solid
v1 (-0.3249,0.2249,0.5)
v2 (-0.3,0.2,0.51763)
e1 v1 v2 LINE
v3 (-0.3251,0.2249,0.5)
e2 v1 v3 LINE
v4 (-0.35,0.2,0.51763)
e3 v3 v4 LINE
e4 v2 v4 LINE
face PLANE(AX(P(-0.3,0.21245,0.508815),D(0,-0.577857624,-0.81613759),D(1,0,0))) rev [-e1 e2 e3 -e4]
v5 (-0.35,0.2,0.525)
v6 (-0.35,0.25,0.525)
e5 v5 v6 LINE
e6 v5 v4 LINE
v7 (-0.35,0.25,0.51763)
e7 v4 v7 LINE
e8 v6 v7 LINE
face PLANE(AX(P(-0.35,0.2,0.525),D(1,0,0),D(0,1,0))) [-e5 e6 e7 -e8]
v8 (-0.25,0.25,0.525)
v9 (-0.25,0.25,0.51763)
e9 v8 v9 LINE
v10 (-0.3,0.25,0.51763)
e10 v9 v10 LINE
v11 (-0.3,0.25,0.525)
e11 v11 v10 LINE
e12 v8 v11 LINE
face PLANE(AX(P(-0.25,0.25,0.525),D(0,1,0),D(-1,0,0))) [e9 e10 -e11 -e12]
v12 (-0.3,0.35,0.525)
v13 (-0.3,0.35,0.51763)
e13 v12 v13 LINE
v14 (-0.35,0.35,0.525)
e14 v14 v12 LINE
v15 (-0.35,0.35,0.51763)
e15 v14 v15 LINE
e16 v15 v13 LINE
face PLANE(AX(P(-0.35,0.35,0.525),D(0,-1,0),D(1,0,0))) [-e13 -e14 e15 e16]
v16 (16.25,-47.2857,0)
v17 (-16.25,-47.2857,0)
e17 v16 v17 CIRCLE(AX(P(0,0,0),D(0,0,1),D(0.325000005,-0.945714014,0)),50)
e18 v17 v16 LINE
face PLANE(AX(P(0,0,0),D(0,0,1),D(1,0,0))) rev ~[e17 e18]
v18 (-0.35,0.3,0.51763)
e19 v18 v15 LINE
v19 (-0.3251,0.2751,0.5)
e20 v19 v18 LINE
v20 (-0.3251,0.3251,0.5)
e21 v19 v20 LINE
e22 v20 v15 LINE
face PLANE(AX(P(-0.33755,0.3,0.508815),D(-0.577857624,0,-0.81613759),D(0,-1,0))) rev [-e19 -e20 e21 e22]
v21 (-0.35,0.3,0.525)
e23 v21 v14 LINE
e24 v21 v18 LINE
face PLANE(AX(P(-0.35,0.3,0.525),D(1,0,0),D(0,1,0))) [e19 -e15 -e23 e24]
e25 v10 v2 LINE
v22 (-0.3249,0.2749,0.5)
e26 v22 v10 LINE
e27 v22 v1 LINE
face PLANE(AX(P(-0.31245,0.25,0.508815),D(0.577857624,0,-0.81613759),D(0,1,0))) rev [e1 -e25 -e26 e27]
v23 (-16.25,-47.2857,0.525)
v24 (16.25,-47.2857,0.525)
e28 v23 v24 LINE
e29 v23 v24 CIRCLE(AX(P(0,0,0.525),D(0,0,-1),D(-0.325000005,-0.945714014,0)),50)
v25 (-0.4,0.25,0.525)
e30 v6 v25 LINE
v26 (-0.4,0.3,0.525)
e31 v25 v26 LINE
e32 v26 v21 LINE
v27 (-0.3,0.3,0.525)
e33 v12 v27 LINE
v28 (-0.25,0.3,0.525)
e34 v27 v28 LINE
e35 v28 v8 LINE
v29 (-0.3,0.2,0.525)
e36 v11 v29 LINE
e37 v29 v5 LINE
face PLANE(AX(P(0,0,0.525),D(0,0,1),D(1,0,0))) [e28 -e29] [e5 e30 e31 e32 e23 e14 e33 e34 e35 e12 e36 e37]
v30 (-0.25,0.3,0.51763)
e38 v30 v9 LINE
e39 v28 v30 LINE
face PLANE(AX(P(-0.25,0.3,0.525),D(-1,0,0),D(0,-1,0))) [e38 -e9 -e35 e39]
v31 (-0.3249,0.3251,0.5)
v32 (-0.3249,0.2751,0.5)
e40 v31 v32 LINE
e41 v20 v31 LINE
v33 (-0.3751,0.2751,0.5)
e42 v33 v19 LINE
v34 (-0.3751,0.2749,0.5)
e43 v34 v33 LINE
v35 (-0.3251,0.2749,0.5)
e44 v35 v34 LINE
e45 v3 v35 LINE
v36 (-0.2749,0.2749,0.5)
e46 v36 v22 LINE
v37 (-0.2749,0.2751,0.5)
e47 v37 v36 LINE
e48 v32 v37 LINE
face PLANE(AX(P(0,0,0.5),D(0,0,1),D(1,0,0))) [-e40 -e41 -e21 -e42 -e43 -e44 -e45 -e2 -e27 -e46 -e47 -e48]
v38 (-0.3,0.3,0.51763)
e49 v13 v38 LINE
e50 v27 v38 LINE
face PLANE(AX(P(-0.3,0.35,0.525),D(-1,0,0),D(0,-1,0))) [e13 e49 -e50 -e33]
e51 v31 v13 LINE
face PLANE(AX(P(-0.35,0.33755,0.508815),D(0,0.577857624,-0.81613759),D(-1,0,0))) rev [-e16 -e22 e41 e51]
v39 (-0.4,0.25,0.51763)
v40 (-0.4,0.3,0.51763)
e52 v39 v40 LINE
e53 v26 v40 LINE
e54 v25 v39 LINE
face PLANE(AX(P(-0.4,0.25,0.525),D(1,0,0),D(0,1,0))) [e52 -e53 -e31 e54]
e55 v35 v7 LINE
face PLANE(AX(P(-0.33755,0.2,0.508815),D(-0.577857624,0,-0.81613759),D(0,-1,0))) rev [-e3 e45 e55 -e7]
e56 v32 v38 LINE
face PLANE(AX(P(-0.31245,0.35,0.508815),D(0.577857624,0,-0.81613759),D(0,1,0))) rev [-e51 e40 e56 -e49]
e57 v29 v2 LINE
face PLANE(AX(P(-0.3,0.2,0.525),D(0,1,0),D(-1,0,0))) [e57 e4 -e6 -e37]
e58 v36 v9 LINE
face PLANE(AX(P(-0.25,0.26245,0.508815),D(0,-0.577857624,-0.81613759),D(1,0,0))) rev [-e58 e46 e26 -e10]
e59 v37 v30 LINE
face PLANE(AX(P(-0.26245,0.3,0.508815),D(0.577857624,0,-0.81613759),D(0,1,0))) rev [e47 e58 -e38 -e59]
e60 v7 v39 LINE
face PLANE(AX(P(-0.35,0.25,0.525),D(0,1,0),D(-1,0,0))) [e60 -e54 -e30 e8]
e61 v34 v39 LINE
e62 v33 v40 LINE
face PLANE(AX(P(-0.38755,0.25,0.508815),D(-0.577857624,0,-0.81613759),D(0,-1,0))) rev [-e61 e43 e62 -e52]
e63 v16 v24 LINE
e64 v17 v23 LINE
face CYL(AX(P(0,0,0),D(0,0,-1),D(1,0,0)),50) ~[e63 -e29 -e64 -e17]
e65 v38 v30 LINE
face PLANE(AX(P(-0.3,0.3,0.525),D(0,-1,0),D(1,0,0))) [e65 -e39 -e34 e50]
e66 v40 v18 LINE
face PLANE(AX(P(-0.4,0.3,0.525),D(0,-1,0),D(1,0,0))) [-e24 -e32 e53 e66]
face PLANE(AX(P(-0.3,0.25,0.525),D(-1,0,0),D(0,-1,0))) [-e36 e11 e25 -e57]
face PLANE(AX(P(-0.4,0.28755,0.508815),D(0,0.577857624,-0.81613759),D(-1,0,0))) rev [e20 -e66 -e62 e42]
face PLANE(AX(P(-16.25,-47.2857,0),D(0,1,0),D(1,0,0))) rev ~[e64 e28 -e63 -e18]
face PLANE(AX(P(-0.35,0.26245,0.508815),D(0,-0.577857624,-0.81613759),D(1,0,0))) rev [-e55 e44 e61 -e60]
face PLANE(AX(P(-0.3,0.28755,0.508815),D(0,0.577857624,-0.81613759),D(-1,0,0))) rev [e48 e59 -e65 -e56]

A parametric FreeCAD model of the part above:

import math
import FreeCAD as App
import Part
import Sketcher
from FreeCAD import Vector
Q = App.Units.Quantity


def edges_at(feature, points):
    """Names of the edges that pass closest to the given points."""
    edges = feature.Shape.Edges
    near = lambda p: min(range(len(edges)), key=lambda i: edges[i].distToShape(Part.Vertex(*p))[0])
    return sorted({f"Edge{near(p) + 1}" for p in points})


def add_polygon(sketch, points):
    """Adds a closed chain of lines whose ends are joined by coincident constraints."""
    first, n = sketch.GeometryCount, len(points)
    for a, b in zip(points, points[1:] + points[:1]):
        sketch.addGeometry(Part.LineSegment(App.Vector(*a, 0), App.Vector(*b, 0)), False)
    for i in range(n):
        sketch.addConstraint(Sketcher.Constraint("Coincident", first + i, 2, first + (i + 1) % n, 1))

doc = App.newDocument("Part")
body = doc.addObject("PartDesign::Body", "Body")

# Sketch on XY plane
sketch1 = doc.addObject("Sketcher::SketchObject", "Sketch")
body.addObject(sketch1)
sketch1.AttachmentSupport = (doc.XY_Plane, [""])
sketch1.MapMode = "FlatFace"
sketch1.addGeometry(Part.ArcOfCircle(Part.Circle(Vector(0, 0, 0), Vector(0, 0, 1), 50), math.radians(-71), math.radians(251)), False)
sketch1.addGeometry(Part.LineSegment(Vector(-16, -47, 0), Vector(16, -47, 0)), False)
sketch1.addConstraint(Sketcher.Constraint("Coincident", 0, 1, 1, 2))
sketch1.addConstraint(Sketcher.Constraint("Coincident", 1, 1, 0, 2))
sketch1.addConstraint(Sketcher.Constraint("Horizontal", 1))
sketch1.addConstraint(Sketcher.Constraint("Coincident", 0, 3, -1, 1))
sketch1.addConstraint(Sketcher.Constraint("Radius", 0, Q("50 mm")))
sketch1.addConstraint(Sketcher.Constraint("DistanceX", 1, 1, 1, 2, Q("32.5 mm")))
pad1 = doc.addObject("PartDesign::Pad", "Pad")
body.addObject(pad1)
pad1.Profile = sketch1
pad1.Length = 0.525

# Sketch on XY plane
sketch2 = doc.addObject("Sketcher::SketchObject", "Sketch001")
body.addObject(sketch2)
sketch2.AttachmentSupport = (doc.XY_Plane, [""])
sketch2.MapMode = "FlatFace"
sketch2.AttachmentOffset = App.Placement(Vector(0, 0, 0.525), App.Rotation())
add_polygon(sketch2, [(-0.3, 0.35), (-0.35, 0.35), (-0.35, 0.3), (-0.4, 0.3), (-0.4, 0.25), (-0.35, 0.25), (-0.35, 0.2), (-0.3, 0.2), (-0.3, 0.25), (-0.25, 0.25), (-0.25, 0.3), (-0.3, 0.3)])  # lines 0-11
sketch2.addConstraint(Sketcher.Constraint("Horizontal", 0))
sketch2.addConstraint(Sketcher.Constraint("Vertical", 1))
sketch2.addConstraint(Sketcher.Constraint("Horizontal", 2))
sketch2.addConstraint(Sketcher.Constraint("Vertical", 3))
sketch2.addConstraint(Sketcher.Constraint("Horizontal", 4))
sketch2.addConstraint(Sketcher.Constraint("Vertical", 5))
sketch2.addConstraint(Sketcher.Constraint("Horizontal", 6))
sketch2.addConstraint(Sketcher.Constraint("Vertical", 7))
sketch2.addConstraint(Sketcher.Constraint("Horizontal", 8))
sketch2.addConstraint(Sketcher.Constraint("Vertical", 9))
sketch2.addConstraint(Sketcher.Constraint("Horizontal", 10))
sketch2.addConstraint(Sketcher.Constraint("Vertical", 11))
sketch2.addConstraint(Sketcher.Constraint("Horizontal", 4, 2, 7, 2))
sketch2.addConstraint(Sketcher.Constraint("Horizontal", 2, 2, 9, 2))
sketch2.addConstraint(Sketcher.Constraint("Vertical", 1, 2, 4, 2))
sketch2.addConstraint(Sketcher.Constraint("Vertical", 7, 2, 10, 2))
sketch2.addConstraint(Sketcher.Constraint("Equal", 0, 2))
sketch2.addConstraint(Sketcher.Constraint("Equal", 6, 8))
sketch2.addConstraint(Sketcher.Constraint("Equal", 10, 1))
sketch2.addConstraint(Sketcher.Constraint("Equal", 1, 3))
sketch2.addConstraint(Sketcher.Constraint("Equal", 3, 5))
sketch2.addConstraint(Sketcher.Constraint("DistanceX", 0, 2, 0, 1, Q("0.05 mm")))
sketch2.addConstraint(Sketcher.Constraint("DistanceY", -1, 1, 3, 2, Q("0.25 mm")))
sketch2.addConstraint(Sketcher.Constraint("DistanceX", 8, 2, -1, 1, Q("0.25 mm")))
pocket1 = doc.addObject("PartDesign::Pocket", "Pocket")
body.addObject(pocket1)
pocket1.Profile = sketch2
pocket1.Length = 0.025
doc.recompute()

chamfer = doc.addObject("PartDesign::Chamfer", "Chamfer")
body.addObject(chamfer)
chamfer.Base = (pocket1, edges_at(pocket1, [
    (-0.325, 0.35, 0.5),
    (-0.35, 0.325, 0.5),
    (-0.375, 0.3, 0.5),
    (-0.4, 0.275, 0.5),
    (-0.375, 0.25, 0.5),
    (-0.35, 0.225, 0.5),
    (-0.325, 0.2, 0.5),
    (-0.3, 0.225, 0.5),
    (-0.275, 0.25, 0.5),
    (-0.25, 0.275, 0.5),
    (-0.275, 0.3, 0.5),
    (-0.3, 0.325, 0.5),
]))
chamfer.ChamferType = "Distance and Angle"
chamfer.Size = 0.0249
chamfer.Angle = 35.3

doc.recompute()
